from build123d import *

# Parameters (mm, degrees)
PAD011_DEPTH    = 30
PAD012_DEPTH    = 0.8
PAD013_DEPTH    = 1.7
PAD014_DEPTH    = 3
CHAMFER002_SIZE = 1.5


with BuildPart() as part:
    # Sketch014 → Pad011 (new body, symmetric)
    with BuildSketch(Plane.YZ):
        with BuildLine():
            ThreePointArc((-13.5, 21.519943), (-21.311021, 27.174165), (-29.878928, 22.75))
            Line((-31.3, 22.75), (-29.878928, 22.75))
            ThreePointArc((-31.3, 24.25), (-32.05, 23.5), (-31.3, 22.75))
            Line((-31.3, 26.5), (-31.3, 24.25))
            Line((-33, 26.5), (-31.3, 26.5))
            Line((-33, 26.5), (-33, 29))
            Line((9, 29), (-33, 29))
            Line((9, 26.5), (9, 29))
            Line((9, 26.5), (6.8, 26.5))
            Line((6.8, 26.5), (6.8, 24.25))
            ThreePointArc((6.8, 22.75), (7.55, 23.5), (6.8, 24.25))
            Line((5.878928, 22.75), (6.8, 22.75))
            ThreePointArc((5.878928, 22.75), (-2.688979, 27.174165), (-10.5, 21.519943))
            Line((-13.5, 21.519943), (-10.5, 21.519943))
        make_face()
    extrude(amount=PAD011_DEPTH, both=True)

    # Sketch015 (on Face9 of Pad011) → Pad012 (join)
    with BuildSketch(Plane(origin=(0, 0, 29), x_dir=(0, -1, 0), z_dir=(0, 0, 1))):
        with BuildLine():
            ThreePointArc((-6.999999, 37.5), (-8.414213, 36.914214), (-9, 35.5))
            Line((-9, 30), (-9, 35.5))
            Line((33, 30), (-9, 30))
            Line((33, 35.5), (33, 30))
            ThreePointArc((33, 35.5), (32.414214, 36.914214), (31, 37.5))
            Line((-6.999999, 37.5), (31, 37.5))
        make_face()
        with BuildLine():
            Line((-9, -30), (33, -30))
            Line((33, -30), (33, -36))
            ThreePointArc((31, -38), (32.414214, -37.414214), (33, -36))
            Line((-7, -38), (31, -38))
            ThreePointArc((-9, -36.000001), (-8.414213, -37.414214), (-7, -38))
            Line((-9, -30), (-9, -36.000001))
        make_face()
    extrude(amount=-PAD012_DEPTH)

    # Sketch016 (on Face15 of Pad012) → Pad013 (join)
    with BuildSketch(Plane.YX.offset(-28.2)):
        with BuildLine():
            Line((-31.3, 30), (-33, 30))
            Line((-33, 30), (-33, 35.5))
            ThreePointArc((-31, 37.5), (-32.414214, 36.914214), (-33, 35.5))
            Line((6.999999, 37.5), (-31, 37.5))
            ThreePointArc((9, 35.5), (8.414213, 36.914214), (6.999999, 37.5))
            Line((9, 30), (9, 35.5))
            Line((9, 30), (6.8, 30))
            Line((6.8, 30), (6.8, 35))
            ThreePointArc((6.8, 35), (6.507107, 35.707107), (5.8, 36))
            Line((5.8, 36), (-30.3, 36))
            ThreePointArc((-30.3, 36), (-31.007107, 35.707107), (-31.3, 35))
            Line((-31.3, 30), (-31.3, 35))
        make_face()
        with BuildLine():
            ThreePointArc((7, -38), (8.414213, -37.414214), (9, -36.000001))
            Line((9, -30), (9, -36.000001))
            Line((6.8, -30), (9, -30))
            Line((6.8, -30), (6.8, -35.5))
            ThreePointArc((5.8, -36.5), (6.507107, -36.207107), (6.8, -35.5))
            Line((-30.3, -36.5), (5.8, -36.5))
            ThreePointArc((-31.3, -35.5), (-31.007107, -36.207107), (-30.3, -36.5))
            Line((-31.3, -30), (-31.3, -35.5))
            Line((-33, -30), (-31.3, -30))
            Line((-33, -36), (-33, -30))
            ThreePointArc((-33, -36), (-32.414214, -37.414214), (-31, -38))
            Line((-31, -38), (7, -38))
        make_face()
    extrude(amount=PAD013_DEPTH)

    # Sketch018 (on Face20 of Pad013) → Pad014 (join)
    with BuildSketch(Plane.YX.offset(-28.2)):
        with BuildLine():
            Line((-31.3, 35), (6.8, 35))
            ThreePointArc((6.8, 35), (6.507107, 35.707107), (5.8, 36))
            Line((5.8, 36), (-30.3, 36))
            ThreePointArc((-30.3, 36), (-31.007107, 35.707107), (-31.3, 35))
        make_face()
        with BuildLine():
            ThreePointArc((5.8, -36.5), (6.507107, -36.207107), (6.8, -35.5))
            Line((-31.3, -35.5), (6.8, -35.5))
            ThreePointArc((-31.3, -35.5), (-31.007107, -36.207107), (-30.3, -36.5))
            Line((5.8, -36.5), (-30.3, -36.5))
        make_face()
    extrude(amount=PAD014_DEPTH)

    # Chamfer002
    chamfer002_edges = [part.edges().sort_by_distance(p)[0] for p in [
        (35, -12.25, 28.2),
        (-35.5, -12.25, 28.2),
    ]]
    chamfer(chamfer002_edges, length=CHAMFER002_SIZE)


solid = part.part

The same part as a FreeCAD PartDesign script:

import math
import FreeCAD as App
import Part
import Sketcher

V = App.Vector


def edges_at(feature, points):
    """Names of the edges that pass closest to the given points."""
    edges = feature.Shape.Edges
    near = lambda p: min(range(len(edges)), key=lambda i: edges[i].distToShape(Part.Vertex(*p))[0])
    return sorted({f"Edge{near(p) + 1}" for p in points})

doc = App.newDocument("Part")
params = doc.addObject("Spreadsheet::Sheet", "Params")
for row, (alias, value) in enumerate([
    ("sketch1_radius", "9.2 mm"),
    ("sketch1_width", "3 mm"),
    ("sketch1_width2", "42 mm"),
    ("sketch1_radius2", "0.75 mm"),
    ("sketch1_width3", "2.2 mm"),
    ("pad1_length", "60 mm"),
    ("sketch2_radius", "2 mm"),
    ("sketch2_width", "6.000001 mm"),
    ("sketch2_height", "42 mm"),
    ("sketch2_width2", "5.5 mm"),
    ("pad2_length", "0.8 mm"),
    ("sketch3_radius", "0.999999 mm"),
    ("sketch3_radius2", "2 mm"),
    ("sketch3_width", "5 mm"),
    ("sketch3_width2", "6.000001 mm"),
    ("sketch3_height", "37.999999 mm"),
    ("pad3_length", "1.7 mm"),
    ("sketch4_radius", "0.999999 mm"),
    ("sketch4_height", "38.1 mm"),
    ("pad4_length", "3 mm"),
    ("chamfer_size", "1.5 mm"),
], start=1):
    params.set(f"A{row}", alias)
    params.set(f"B{row}", "=" + value)
    params.setAlias(f"B{row}", alias)

body = doc.addObject("PartDesign::Body", "Body")

# Sketch on YZ plane
sketch1 = body.newObject("Sketcher::SketchObject", "Sketch")
sketch1.AttachmentSupport = (doc.getObject("YZ_Plane"), [""])
sketch1.MapMode = "FlatFace"
sketch1.addGeometry([
    Part.ArcOfCircle(Part.Circle(V(-22, 17.999999, 0), V(0, 0, 1), 9.2), math.radians(22.494984), math.radians(148.915317)),  # 0
    Part.LineSegment(V(-13.5, 21.519943, 0), V(-10.5, 21.519943, 0)),  # 1
    Part.ArcOfCircle(Part.Circle(V(-2, 17.999999, 0), V(0, 0, 1), 9.2), math.radians(31.084683), math.radians(157.505016)),  # 2
    Part.LineSegment(V(5.878928, 22.75, 0), V(6.8, 22.75, 0)),  # 3
    Part.ArcOfCircle(Part.Circle(V(6.8, 23.5, 0), V(0, 0, 1), 0.75), math.radians(-90), math.radians(90)),  # 4
    Part.LineSegment(V(6.8, 24.25, 0), V(6.8, 26.5, 0)),  # 5
    Part.LineSegment(V(6.8, 26.5, 0), V(9, 26.5, 0)),  # 6
    Part.LineSegment(V(9, 26.5, 0), V(9, 29, 0)),  # 7
    Part.LineSegment(V(9, 29, 0), V(-33, 29, 0)),  # 8
    Part.LineSegment(V(-33, 29, 0), V(-33, 26.5, 0)),  # 9
    Part.LineSegment(V(-33, 26.5, 0), V(-31.3, 26.5, 0)),  # 10
    Part.LineSegment(V(-31.3, 26.5, 0), V(-31.3, 24.25, 0)),  # 11
    Part.ArcOfCircle(Part.Circle(V(-31.3, 23.5, 0), V(0, 0, 1), 0.75), math.radians(90), math.radians(270)),  # 12
    Part.LineSegment(V(-31.3, 22.75, 0), V(-29.878928, 22.75, 0)),  # 13
], False)
sketch1.addConstraint([
    Sketcher.Constraint("Coincident", 0, 1, 1, 1),
    Sketcher.Constraint("Coincident", 1, 2, 2, 2),
    Sketcher.Constraint("Coincident", 2, 1, 3, 1),
    Sketcher.Constraint("Tangent", 3, 2, 4, 1),
    Sketcher.Constraint("Coincident", 4, 2, 5, 1),
    Sketcher.Constraint("Coincident", 5, 2, 6, 1),
    Sketcher.Constraint("Coincident", 6, 2, 7, 1),
    Sketcher.Constraint("Coincident", 7, 2, 8, 1),
    Sketcher.Constraint("Coincident", 8, 2, 9, 1),
    Sketcher.Constraint("Coincident", 9, 2, 10, 1),
    Sketcher.Constraint("Coincident", 10, 2, 11, 1),
    Sketcher.Constraint("Coincident", 11, 2, 12, 1),
    Sketcher.Constraint("Tangent", 12, 2, 13, 1),
    Sketcher.Constraint("Coincident", 13, 2, 0, 2),
    Sketcher.Constraint("Horizontal", 1),
    Sketcher.Constraint("Horizontal", 3),
    Sketcher.Constraint("Vertical", 5),
    Sketcher.Constraint("Horizontal", 6),
    Sketcher.Constraint("Vertical", 7),
    Sketcher.Constraint("Horizontal", 8),
    Sketcher.Constraint("Vertical", 9),
    Sketcher.Constraint("Horizontal", 10),
    Sketcher.Constraint("Vertical", 11),
    Sketcher.Constraint("Horizontal", 13),
    Sketcher.Constraint("Equal", 0, 2),
    Sketcher.Constraint("Equal", 4, 12),
    Sketcher.Constraint("Horizontal", 0, 3, 2, 3),
    Sketcher.Constraint("Horizontal", 4, 3, 12, 3),
    Sketcher.Constraint("Horizontal", 6, 2, 9, 2),
    Sketcher.Constraint("Vertical", 3, 2, 4, 2),
    Sketcher.Constraint("Vertical", 12, 3, 10, 2),
    Sketcher.Constraint("Radius", 0, 9.2),
    Sketcher.Constraint("DistanceX", 1, 1, 1, 2, 3.0),
    Sketcher.Constraint("DistanceX", 8, 2, 8, 1, 42.0),
    Sketcher.Constraint("Radius", 4, 0.75),
    Sketcher.Constraint("DistanceX", 6, 1, 6, 2, 2.2),
    Sketcher.Constraint("DistanceX", 10, 1, 10, 2, 1.7),
    Sketcher.Constraint("DistanceY", 7, 1, 7, 2, 2.5),
    Sketcher.Constraint("DistanceX", 0, 3, -1, 1, 22.0),
    Sketcher.Constraint("DistanceY", -1, 1, 0, 3, 17.999999),
    Sketcher.Constraint("DistanceX", 2, 3, -1, 1, 2.0),
    Sketcher.Constraint("DistanceX", -1, 1, 6, 2, 9.0),
    Sketcher.Constraint("DistanceY", -1, 1, 7, 2, 29.0),
    Sketcher.Constraint("DistanceY", 4, 3, 5, 2, 3.0),
])
sketch1.setExpression("Constraints[31]", "Params.sketch1_radius")
sketch1.setExpression("Constraints[32]", "Params.sketch1_width")
sketch1.setExpression("Constraints[33]", "Params.sketch1_width2")
sketch1.setExpression("Constraints[34]", "Params.sketch1_radius2")
sketch1.setExpression("Constraints[35]", "Params.sketch1_width3")
pad1 = body.newObject("PartDesign::Pad", "Pad")
pad1.Profile = sketch1
pad1.setExpression("Length", "Params.pad1_length")
pad1.Midplane = True

# Sketch on XY plane
sketch2 = body.newObject("Sketcher::SketchObject", "Sketch001")
sketch2.AttachmentSupport = (doc.getObject("XY_Plane"), [""])
sketch2.MapMode = "FlatFace"
sketch2.AttachmentOffset = App.Placement(V(0, 0, 29), App.Rotation())
sketch2.addGeometry([
    Part.ArcOfCircle(Part.Circle(V(35.5, 7, 0), V(0, 0, 1), 2), math.radians(-0.000023), math.radians(89.999994)),  # 0
    Part.LineSegment(V(35.5, 9, 0), V(30, 9, 0)),  # 1
    Part.LineSegment(V(30, 9, 0), V(30, -33, 0)),  # 2
    Part.LineSegment(V(30, -33, 0), V(35.5, -33, 0)),  # 3
    Part.ArcOfCircle(Part.Circle(V(35.500001, -31.000001, 0), V(0, 0, 1), 1.999999), math.radians(-90.000043), math.radians(0.000043)),  # 4
    Part.LineSegment(V(37.5, -31, 0), V(37.5, 6.999999, 0)),  # 5
    Part.LineSegment(V(-30, -33, 0), V(-30, 9, 0)),  # 6
    Part.LineSegment(V(-30, 9, 0), V(-36.000001, 9, 0)),  # 7
    Part.ArcOfCircle(Part.Circle(V(-36, 7, 0), V(0, 0, 1), 2), math.radians(90.000035), math.radians(179.999994)),  # 8
    Part.LineSegment(V(-38, 7, 0), V(-38, -31, 0)),  # 9
    Part.ArcOfCircle(Part.Circle(V(-36.000001, -31.000001, 0), V(0, 0, 1), 1.999999), math.radians(179.999957), math.radians(270.000043)),  # 10
    Part.LineSegment(V(-36, -33, 0), V(-30, -33, 0)),  # 11
], False)
sketch2.addConstraint([
    Sketcher.Constraint("Tangent", 0, 2, 1, 1),
    Sketcher.Constraint("Coincident", 1, 2, 2, 1),
    Sketcher.Constraint("Coincident", 2, 2, 3, 1),
    Sketcher.Constraint("Tangent", 3, 2, 4, 1),
    Sketcher.Constraint("Tangent", 4, 2, 5, 1),
    Sketcher.Constraint("Tangent", 5, 2, 0, 1),
    Sketcher.Constraint("Coincident", 6, 2, 7, 1),
    Sketcher.Constraint("Tangent", 7, 2, 8, 1),
    Sketcher.Constraint("Tangent", 8, 2, 9, 1),
    Sketcher.Constraint("Tangent", 9, 2, 10, 1),
    Sketcher.Constraint("Tangent", 10, 2, 11, 1),
    Sketcher.Constraint("Coincident", 11, 2, 6, 1),
    Sketcher.Constraint("Horizontal", 1),
    Sketcher.Constraint("Vertical", 2),
    Sketcher.Constraint("Horizontal", 3),
    Sketcher.Constraint("Vertical", 5),
    Sketcher.Constraint("Vertical", 6),
    Sketcher.Constraint("Horizontal", 7),
    Sketcher.Constraint("Vertical", 9),
    Sketcher.Constraint("Horizontal", 11),
    Sketcher.Constraint("Equal", 0, 4),
    Sketcher.Constraint("Equal", 4, 8),
    Sketcher.Constraint("Equal", 8, 10),
    Sketcher.Constraint("Symmetric", 1, 2, 6, 2, -2),
    Sketcher.Constraint("Horizontal", 4, 3, 10, 3),
    Sketcher.Constraint("Radius", 0, 2.0),
    Sketcher.Constraint("DistanceX", 7, 2, 7, 1, 6.000001),
    Sketcher.Constraint("DistanceY", 2, 2, 2, 1, 42.0),
    Sketcher.Constraint("DistanceX", 1, 2, 1, 1, 5.5),
    Sketcher.Constraint("DistanceY", -1, 1, 0, 3, 7.0),
    Sketcher.Constraint("DistanceX", 8, 3, -1, 1, 36.0),
])
sketch2.setExpression("Constraints[25]", "Params.sketch2_radius")
sketch2.setExpression("Constraints[26]", "Params.sketch2_width")
sketch2.setExpression("Constraints[27]", "Params.sketch2_height")
sketch2.setExpression("Constraints[28]", "Params.sketch2_width2")
pad2 = body.newObject("PartDesign::Pad", "Pad001")
pad2.Profile = sketch2
pad2.setExpression("Length", "Params.pad2_length")
pad2.Reversed = True

# Sketch on XY plane
sketch3 = body.newObject("Sketcher::SketchObject", "Sketch002")
sketch3.AttachmentSupport = (doc.getObject("XY_Plane"), [""])
sketch3.MapMode = "FlatFace"
sketch3.AttachmentOffset = App.Placement(V(0, 0, 28.2), App.Rotation())
sketch3.addGeometry([
    Part.LineSegment(V(30, -33, 0), V(30, -31.3, 0)),  # 0
    Part.LineSegment(V(30, -31.3, 0), V(35, -31.3, 0)),  # 1
    Part.ArcOfCircle(Part.Circle(V(35.000001, -30.300001, 0), V(0, 0, 1), 0.999999), math.radians(-90.000043), math.radians(0.000043)),  # 2
    Part.LineSegment(V(36, -30.3, 0), V(36, 5.8, 0)),  # 3
    Part.ArcOfCircle(Part.Circle(V(35.000001, 5.800001, 0), V(0, 0, 1), 0.999999), math.radians(-0.000043), math.radians(90.000043)),  # 4
    Part.LineSegment(V(35, 6.8, 0), V(30, 6.8, 0)),  # 5
    Part.LineSegment(V(30, 6.8, 0), V(30, 9, 0)),  # 6
    Part.LineSegment(V(30, 9, 0), V(35.5, 9, 0)),  # 7
    Part.ArcOfCircle(Part.Circle(V(35.5, 7, 0), V(0, 0, 1), 2), math.radians(-0.000023), math.radians(89.999994)),  # 8
    Part.LineSegment(V(37.5, 6.999999, 0), V(37.5, -31, 0)),  # 9
    Part.ArcOfCircle(Part.Circle(V(35.500001, -31.000001, 0), V(0, 0, 1), 1.999999), math.radians(-90.000043), math.radians(0.000043)),  # 10
    Part.LineSegment(V(35.5, -33, 0), V(30, -33, 0)),  # 11
    Part.ArcOfCircle(Part.Circle(V(-36, 7, 0), V(0, 0, 1), 2), math.radians(90.000035), math.radians(179.999994)),  # 12
    Part.LineSegment(V(-36.000001, 9, 0), V(-30, 9, 0)),  # 13
    Part.LineSegment(V(-30, 9, 0), V(-30, 6.8, 0)),  # 14
    Part.LineSegment(V(-30, 6.8, 0), V(-35.5, 6.8, 0)),  # 15
    Part.ArcOfCircle(Part.Circle(V(-35.500001, 5.800001, 0), V(0, 0, 1), 0.999999), math.radians(89.999957), math.radians(180.000043)),  # 16
    Part.LineSegment(V(-36.5, 5.8, 0), V(-36.5, -30.3, 0)),  # 17
    Part.ArcOfCircle(Part.Circle(V(-35.500001, -30.300001, 0), V(0, 0, 1), 0.999999), math.radians(179.999957), math.radians(270.000043)),  # 18
    Part.LineSegment(V(-35.5, -31.3, 0), V(-30, -31.3, 0)),  # 19
    Part.LineSegment(V(-30, -31.3, 0), V(-30, -33, 0)),  # 20
    Part.LineSegment(V(-30, -33, 0), V(-36, -33, 0)),  # 21
    Part.ArcOfCircle(Part.Circle(V(-36.000001, -31.000001, 0), V(0, 0, 1), 1.999999), math.radians(179.999957), math.radians(270.000043)),  # 22
    Part.LineSegment(V(-38, -31, 0), V(-38, 7, 0)),  # 23
], False)
sketch3.addConstraint([
    Sketcher.Constraint("Coincident", 0, 2, 1, 1),
    Sketcher.Constraint("Tangent", 1, 2, 2, 1),
    Sketcher.Constraint("Tangent", 2, 2, 3, 1),
    Sketcher.Constraint("Tangent", 3, 2, 4, 1),
    Sketcher.Constraint("Tangent", 4, 2, 5, 1),
    Sketcher.Constraint("Coincident", 5, 2, 6, 1),
    Sketcher.Constraint("Coincident", 6, 2, 7, 1),
    Sketcher.Constraint("Tangent", 7, 2, 8, 2),
    Sketcher.Constraint("Tangent", 8, 1, 9, 1),
    Sketcher.Constraint("Tangent", 9, 2, 10, 2),
    Sketcher.Constraint("Tangent", 10, 1, 11, 1),
    Sketcher.Constraint("Coincident", 11, 2, 0, 1),
    Sketcher.Constraint("Tangent", 12, 1, 13, 1),
    Sketcher.Constraint("Coincident", 13, 2, 14, 1),
    Sketcher.Constraint("Coincident", 14, 2, 15, 1),
    Sketcher.Constraint("Tangent", 15, 2, 16, 1),
    Sketcher.Constraint("Tangent", 16, 2, 17, 1),
    Sketcher.Constraint("Tangent", 17, 2, 18, 1),
    Sketcher.Constraint("Tangent", 18, 2, 19, 1),
    Sketcher.Constraint("Coincident", 19, 2, 20, 1),
    Sketcher.Constraint("Coincident", 20, 2, 21, 1),
    Sketcher.Constraint("Tangent", 21, 2, 22, 2),
    Sketcher.Constraint("Tangent", 22, 1, 23, 1),
    Sketcher.Constraint("Tangent", 23, 2, 12, 2),
    Sketcher.Constraint("Vertical", 0),
    Sketcher.Constraint("Horizontal", 1),
    Sketcher.Constraint("Vertical", 3),
    Sketcher.Constraint("Horizontal", 5),
    Sketcher.Constraint("Vertical", 6),
    Sketcher.Constraint("Horizontal", 7),
    Sketcher.Constraint("Vertical", 9),
    Sketcher.Constraint("Horizontal", 11),
    Sketcher.Constraint("Horizontal", 13),
    Sketcher.Constraint("Vertical", 14),
    Sketcher.Constraint("Horizontal", 15),
    Sketcher.Constraint("Vertical", 17),
    Sketcher.Constraint("Horizontal", 19),
    Sketcher.Constraint("Vertical", 20),
    Sketcher.Constraint("Horizontal", 21),
    Sketcher.Constraint("Vertical", 23),
    Sketcher.Constraint("Equal", 2, 4),
    Sketcher.Constraint("Equal", 8, 10),
    Sketcher.Constraint("Equal", 10, 12),
    Sketcher.Constraint("Equal", 4, 16),
    Sketcher.Constraint("Equal", 16, 18),
    Sketcher.Constraint("Equal", 12, 22),
    Sketcher.Constraint("Symmetric", 6, 2, 13, 2, -2),
    Sketcher.Constraint("Symmetric", 0, 2, 19, 2, -2),
    Sketcher.Constraint("Horizontal", 4, 3, 16, 3),
    Sketcher.Constraint("Horizontal", 10, 3, 22, 3),
    Sketcher.Constraint("Vertical", 0, 2, 5, 2),
    Sketcher.Constraint("Equal", 11, 15),
    Sketcher.Constraint("Radius", 2, 0.999999),
    Sketcher.Constraint("Radius", 8, 2.0),
    Sketcher.Constraint("DistanceX", 1, 1, 1, 2, 5.0),
    Sketcher.Constraint("DistanceX", 13, 1, 13, 2, 6.000001),
    Sketcher.Constraint("DistanceY", 9, 2, 9, 1, 37.999999),
    Sketcher.Constraint("DistanceX", 7, 1, 7, 2, 5.5),
    Sketcher.Constraint("DistanceY", 0, 1, 0, 2, 1.7),
    Sketcher.Constraint("DistanceY", 3, 1, 3, 2, 36.1),
    Sketcher.Constraint("DistanceX", -1, 1, 2, 3, 35.000001),
    Sketcher.Constraint("DistanceY", -1, 1, 8, 3, 7.0),
])
sketch3.setExpression("Constraints[52]", "Params.sketch3_radius")
sketch3.setExpression("Constraints[53]", "Params.sketch3_radius2")
sketch3.setExpression("Constraints[54]", "Params.sketch3_width")
sketch3.setExpression("Constraints[55]", "Params.sketch3_width2")
sketch3.setExpression("Constraints[56]", "Params.sketch3_height")
pad3 = body.newObject("PartDesign::Pad", "Pad002")
pad3.Profile = sketch3
pad3.setExpression("Length", "Params.pad3_length")
pad3.Reversed = True

# Sketch on XY plane
sketch4 = body.newObject("Sketcher::SketchObject", "Sketch003")
sketch4.AttachmentSupport = (doc.getObject("XY_Plane"), [""])
sketch4.MapMode = "FlatFace"
sketch4.AttachmentOffset = App.Placement(V(0, 0, 28.2), App.Rotation())
sketch4.addGeometry([
    Part.LineSegment(V(35, -31.3, 0), V(35, 6.8, 0)),  # 0
    Part.ArcOfCircle(Part.Circle(V(35.000001, 5.800001, 0), V(0, 0, 1), 0.999999), math.radians(-0.000043), math.radians(90.000043)),  # 1
    Part.LineSegment(V(36, 5.8, 0), V(36, -30.3, 0)),  # 2
    Part.ArcOfCircle(Part.Circle(V(35.000001, -30.300001, 0), V(0, 0, 1), 0.999999), math.radians(-90.000043), math.radians(0.000043)),  # 3
    Part.ArcOfCircle(Part.Circle(V(-35.500001, 5.800001, 0), V(0, 0, 1), 0.999999), math.radians(89.999957), math.radians(180.000043)),  # 4
    Part.LineSegment(V(-35.5, 6.8, 0), V(-35.5, -31.3, 0)),  # 5
    Part.ArcOfCircle(Part.Circle(V(-35.500001, -30.300001, 0), V(0, 0, 1), 0.999999), math.radians(179.999957), math.radians(270.000043)),  # 6
    Part.LineSegment(V(-36.5, -30.3, 0), V(-36.5, 5.8, 0)),  # 7
], False)
sketch4.addConstraint([
    Sketcher.Constraint("Coincident", 0, 2, 1, 2),
    Sketcher.Constraint("Tangent", 1, 1, 2, 1),
    Sketcher.Constraint("Tangent", 2, 2, 3, 2),
    Sketcher.Constraint("Coincident", 3, 1, 0, 1),
    Sketcher.Constraint("Coincident", 4, 1, 5, 1),
    Sketcher.Constraint("Coincident", 5, 2, 6, 2),
    Sketcher.Constraint("Tangent", 6, 1, 7, 1),
    Sketcher.Constraint("Tangent", 7, 2, 4, 2),
    Sketcher.Constraint("Vertical", 0),
    Sketcher.Constraint("Vertical", 2),
    Sketcher.Constraint("Vertical", 5),
    Sketcher.Constraint("Vertical", 7),
    Sketcher.Constraint("Equal", 1, 3),
    Sketcher.Constraint("Equal", 3, 4),
    Sketcher.Constraint("Equal", 4, 6),
    Sketcher.Constraint("Horizontal", 1, 3, 4, 3),
    Sketcher.Constraint("Horizontal", 3, 3, 6, 3),
    Sketcher.Constraint("Vertical", 3, 3, 0, 2),
    Sketcher.Constraint("Vertical", 6, 3, 4, 1),
    Sketcher.Constraint("Radius", 1, 0.999999),
    Sketcher.Constraint("DistanceY", 0, 1, 0, 2, 38.1),
    Sketcher.Constraint("DistanceX", -1, 1, 1, 3, 35.000001),
    Sketcher.Constraint("DistanceY", -1, 1, 1, 3, 5.800001),
    Sketcher.Constraint("DistanceX", 4, 3, -1, 1, 35.500001),
])
sketch4.setExpression("Constraints[19]", "Params.sketch4_radius")
sketch4.setExpression("Constraints[20]", "Params.sketch4_height")
pad4 = body.newObject("PartDesign::Pad", "Pad003")
pad4.Profile = sketch4
pad4.setExpression("Length", "Params.pad4_length")
pad4.Reversed = True
doc.recompute()

chamfer = body.newObject("PartDesign::Chamfer", "Chamfer")
chamfer.Base = (pad4, edges_at(pad4, [(35, -12.25, 28.2), (-35.5, -12.25, 28.2)]))
chamfer.setExpression("Size", "Params.chamfer_size")

doc.recompute()
